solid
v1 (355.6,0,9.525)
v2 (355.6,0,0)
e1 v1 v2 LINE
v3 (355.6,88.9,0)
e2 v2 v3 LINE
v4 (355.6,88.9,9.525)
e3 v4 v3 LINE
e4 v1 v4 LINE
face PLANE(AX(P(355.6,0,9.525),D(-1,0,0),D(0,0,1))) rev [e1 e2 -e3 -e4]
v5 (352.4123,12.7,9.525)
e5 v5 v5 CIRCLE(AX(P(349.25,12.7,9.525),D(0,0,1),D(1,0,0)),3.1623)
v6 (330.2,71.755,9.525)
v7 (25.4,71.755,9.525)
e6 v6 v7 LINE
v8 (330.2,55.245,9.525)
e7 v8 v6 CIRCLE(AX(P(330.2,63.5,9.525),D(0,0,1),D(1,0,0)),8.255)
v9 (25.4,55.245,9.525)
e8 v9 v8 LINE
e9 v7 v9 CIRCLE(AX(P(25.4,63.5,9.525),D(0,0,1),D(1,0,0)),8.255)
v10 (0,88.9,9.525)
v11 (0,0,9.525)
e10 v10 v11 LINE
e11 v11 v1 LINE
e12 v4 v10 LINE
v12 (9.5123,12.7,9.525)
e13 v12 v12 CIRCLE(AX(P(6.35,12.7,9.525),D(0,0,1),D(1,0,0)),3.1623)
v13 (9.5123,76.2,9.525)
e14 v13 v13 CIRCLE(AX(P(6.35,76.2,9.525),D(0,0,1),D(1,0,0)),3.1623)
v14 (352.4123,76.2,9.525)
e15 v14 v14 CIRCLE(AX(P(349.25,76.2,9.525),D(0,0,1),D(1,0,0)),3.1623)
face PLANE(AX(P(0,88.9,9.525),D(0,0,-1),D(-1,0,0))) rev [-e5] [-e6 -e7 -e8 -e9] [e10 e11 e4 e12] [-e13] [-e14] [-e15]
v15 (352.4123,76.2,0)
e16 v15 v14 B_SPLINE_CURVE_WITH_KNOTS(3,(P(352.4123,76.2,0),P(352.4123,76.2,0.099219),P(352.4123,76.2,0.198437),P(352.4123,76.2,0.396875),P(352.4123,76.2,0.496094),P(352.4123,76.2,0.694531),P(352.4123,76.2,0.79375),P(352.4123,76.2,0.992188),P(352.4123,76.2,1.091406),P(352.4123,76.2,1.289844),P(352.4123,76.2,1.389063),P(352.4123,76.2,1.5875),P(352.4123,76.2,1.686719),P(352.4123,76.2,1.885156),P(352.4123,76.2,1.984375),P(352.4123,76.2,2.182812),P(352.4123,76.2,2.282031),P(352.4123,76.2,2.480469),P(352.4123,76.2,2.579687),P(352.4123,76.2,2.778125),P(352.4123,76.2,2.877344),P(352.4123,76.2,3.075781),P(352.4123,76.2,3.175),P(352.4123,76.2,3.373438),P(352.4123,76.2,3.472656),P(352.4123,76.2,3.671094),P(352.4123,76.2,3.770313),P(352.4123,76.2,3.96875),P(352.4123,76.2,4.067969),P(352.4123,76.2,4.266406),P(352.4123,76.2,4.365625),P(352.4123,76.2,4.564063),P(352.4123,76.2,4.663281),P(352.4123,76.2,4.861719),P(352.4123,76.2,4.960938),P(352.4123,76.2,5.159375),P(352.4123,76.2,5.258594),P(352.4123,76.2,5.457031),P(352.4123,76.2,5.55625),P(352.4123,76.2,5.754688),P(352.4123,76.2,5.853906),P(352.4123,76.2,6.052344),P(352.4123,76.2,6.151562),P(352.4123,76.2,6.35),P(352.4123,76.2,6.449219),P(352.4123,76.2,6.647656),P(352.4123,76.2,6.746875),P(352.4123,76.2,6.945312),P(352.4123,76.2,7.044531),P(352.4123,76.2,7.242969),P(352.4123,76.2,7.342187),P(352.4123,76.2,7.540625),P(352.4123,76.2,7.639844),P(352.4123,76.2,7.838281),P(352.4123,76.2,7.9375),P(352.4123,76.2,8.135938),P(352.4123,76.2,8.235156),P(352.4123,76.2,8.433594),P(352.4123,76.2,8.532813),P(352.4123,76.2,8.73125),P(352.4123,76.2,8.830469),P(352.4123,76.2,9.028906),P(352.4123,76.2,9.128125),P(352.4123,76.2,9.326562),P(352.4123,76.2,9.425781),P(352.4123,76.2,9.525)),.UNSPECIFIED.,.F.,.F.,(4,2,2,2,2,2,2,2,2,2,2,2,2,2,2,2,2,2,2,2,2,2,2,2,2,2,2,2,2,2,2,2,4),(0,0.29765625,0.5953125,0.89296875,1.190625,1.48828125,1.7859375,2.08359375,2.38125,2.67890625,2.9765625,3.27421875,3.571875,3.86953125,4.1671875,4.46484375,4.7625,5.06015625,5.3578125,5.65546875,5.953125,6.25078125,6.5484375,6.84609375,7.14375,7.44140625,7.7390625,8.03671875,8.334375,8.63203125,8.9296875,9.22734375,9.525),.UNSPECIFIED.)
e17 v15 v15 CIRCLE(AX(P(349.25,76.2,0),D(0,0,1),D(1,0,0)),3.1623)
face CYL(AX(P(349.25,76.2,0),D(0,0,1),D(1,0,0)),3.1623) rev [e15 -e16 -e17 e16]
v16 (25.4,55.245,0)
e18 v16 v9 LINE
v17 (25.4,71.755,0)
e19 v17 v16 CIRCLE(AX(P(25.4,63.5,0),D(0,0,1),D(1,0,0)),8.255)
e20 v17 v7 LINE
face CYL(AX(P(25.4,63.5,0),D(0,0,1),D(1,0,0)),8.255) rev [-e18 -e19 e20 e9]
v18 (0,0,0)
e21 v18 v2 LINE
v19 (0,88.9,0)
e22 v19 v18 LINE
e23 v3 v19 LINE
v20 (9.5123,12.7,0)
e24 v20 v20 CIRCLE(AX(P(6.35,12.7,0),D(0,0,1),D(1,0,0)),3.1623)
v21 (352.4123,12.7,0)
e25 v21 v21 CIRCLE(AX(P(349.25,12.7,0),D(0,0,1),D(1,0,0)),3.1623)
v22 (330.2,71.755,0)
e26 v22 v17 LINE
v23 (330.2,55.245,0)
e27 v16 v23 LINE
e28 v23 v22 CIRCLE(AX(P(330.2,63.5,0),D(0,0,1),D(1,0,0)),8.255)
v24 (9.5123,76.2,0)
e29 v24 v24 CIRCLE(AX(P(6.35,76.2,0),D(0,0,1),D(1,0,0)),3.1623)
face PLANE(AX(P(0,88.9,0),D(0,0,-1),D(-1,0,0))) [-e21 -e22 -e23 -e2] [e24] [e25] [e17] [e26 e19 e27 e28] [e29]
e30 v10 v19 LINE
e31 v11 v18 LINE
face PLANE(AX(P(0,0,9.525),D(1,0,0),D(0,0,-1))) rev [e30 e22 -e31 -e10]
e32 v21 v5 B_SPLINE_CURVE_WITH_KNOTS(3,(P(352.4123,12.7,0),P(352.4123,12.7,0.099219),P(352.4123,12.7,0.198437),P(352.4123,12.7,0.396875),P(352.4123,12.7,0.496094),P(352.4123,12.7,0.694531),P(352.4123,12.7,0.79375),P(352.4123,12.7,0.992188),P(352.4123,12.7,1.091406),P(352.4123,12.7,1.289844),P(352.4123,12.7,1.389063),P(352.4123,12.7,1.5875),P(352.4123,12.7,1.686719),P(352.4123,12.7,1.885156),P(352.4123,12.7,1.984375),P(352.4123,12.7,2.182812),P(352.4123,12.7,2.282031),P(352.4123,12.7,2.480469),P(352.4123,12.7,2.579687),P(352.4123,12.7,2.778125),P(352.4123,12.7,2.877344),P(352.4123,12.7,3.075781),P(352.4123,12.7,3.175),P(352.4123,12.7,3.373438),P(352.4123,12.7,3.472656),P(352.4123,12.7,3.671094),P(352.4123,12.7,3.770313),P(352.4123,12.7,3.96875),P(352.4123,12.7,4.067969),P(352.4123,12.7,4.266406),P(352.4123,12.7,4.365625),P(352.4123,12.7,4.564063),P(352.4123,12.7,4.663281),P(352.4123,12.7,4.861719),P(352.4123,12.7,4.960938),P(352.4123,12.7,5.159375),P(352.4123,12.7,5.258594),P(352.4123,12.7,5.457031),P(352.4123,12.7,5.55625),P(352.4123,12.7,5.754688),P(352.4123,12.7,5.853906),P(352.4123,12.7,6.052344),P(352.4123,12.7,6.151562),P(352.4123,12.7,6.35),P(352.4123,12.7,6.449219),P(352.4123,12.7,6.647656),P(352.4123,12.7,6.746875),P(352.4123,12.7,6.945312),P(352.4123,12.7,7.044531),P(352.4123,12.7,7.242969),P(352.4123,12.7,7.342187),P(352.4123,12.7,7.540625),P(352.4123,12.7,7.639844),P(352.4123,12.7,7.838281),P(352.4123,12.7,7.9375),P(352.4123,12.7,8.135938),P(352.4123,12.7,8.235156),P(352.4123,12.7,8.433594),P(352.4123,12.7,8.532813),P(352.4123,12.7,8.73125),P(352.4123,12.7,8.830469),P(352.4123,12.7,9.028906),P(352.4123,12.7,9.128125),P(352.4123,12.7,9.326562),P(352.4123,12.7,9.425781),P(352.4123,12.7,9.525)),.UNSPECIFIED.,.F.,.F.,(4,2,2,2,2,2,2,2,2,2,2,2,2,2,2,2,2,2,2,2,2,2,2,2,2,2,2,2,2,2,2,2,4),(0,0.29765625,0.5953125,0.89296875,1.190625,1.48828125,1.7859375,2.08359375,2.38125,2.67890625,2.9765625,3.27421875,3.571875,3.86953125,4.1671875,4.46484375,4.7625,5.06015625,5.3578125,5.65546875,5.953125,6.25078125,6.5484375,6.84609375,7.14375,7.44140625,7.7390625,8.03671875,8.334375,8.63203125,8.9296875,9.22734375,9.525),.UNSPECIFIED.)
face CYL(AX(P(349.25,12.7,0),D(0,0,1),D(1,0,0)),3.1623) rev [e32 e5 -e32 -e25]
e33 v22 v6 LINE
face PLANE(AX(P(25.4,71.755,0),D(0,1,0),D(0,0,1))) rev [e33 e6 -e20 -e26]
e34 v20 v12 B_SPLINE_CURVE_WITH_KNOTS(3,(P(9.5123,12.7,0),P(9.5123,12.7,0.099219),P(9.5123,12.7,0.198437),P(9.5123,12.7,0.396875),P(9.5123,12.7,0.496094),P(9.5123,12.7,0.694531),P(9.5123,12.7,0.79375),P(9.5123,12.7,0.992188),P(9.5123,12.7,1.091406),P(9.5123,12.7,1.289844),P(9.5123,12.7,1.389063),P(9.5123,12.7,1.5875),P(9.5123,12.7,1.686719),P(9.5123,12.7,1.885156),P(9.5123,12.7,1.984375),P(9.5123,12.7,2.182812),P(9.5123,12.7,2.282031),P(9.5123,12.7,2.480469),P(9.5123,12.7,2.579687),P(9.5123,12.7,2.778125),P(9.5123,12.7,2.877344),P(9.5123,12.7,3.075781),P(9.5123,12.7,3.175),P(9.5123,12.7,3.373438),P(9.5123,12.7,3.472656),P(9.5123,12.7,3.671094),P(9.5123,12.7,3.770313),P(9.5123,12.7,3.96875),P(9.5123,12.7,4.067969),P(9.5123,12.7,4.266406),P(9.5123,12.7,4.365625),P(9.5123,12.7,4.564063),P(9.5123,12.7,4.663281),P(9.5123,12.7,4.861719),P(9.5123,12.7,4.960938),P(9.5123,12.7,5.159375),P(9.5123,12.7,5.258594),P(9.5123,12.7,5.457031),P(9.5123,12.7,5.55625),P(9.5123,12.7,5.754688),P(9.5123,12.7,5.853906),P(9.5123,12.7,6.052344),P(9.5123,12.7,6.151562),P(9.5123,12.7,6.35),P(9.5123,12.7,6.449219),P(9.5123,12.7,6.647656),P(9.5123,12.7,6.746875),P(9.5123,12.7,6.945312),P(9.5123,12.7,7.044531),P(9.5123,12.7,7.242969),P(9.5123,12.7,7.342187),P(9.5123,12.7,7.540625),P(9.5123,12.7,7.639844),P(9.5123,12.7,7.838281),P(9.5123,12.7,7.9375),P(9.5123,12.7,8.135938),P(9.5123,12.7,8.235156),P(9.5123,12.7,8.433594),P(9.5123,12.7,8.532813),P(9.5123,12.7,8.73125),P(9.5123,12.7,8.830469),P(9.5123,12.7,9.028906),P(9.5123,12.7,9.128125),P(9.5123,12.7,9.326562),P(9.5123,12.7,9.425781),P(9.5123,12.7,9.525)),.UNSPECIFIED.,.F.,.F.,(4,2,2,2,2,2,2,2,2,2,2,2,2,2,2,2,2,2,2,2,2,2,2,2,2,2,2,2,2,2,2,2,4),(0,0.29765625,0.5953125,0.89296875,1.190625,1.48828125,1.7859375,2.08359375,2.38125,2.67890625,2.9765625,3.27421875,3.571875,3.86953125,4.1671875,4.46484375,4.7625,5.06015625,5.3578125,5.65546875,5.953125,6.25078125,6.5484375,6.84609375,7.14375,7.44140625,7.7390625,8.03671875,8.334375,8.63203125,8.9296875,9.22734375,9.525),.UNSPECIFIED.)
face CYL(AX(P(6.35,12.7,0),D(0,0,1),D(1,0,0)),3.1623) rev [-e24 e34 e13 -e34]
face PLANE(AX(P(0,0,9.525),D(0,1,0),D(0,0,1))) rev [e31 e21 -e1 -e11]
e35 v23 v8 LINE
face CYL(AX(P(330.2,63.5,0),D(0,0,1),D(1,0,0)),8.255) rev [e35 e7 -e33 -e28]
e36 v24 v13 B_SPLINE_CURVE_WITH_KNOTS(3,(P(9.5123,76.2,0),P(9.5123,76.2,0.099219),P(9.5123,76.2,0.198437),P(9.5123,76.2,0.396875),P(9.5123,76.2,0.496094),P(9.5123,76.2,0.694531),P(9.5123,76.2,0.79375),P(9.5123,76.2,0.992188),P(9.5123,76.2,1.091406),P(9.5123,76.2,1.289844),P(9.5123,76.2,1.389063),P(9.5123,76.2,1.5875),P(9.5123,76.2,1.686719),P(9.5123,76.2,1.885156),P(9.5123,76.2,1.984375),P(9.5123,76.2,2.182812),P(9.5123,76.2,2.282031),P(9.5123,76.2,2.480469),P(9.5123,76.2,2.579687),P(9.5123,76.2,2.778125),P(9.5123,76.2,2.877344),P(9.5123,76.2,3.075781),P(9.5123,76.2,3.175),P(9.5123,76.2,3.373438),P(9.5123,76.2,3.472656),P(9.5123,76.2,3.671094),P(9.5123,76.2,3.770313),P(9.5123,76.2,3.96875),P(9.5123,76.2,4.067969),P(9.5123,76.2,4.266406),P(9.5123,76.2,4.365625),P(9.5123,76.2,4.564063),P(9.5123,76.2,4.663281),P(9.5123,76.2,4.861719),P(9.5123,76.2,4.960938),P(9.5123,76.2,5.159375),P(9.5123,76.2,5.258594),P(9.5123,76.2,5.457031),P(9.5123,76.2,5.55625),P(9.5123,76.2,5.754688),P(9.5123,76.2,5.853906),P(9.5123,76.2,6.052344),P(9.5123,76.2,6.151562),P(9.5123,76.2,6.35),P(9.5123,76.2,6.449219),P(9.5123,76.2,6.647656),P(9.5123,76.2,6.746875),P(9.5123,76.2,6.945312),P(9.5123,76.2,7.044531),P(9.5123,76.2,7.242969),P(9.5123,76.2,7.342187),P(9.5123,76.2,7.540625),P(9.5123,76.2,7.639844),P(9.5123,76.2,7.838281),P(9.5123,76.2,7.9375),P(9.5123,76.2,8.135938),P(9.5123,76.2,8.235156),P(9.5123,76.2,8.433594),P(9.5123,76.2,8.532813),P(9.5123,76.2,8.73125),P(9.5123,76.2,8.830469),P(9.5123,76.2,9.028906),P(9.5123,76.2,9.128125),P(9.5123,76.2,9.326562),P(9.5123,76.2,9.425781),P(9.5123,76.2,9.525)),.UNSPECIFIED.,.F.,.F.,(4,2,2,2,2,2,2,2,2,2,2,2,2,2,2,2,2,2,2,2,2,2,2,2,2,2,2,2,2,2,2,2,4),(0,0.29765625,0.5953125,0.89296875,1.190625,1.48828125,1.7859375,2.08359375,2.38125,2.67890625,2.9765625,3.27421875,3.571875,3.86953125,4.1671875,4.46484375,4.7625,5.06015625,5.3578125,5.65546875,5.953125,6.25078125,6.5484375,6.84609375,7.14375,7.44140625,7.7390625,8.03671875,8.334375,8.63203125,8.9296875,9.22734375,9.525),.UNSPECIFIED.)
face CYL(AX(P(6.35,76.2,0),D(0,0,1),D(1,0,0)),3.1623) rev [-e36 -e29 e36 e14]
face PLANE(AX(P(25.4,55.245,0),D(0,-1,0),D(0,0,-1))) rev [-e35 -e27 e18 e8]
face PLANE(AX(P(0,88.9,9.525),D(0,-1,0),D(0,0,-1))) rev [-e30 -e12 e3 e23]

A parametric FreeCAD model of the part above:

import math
import FreeCAD as App
import Part
import Sketcher

V = App.Vector
Q = App.Units.Quantity

doc = App.newDocument("Part")
body = doc.addObject("PartDesign::Body", "Body")

# Sketch on XY plane
sketch1 = body.newObject("Sketcher::SketchObject", "Sketch")
sketch1.AttachmentSupport = (doc.getObject("XY_Plane"), [""])
sketch1.MapMode = "FlatFace"
sketch1.addGeometry(Part.LineSegment(V(0, 88.9, 0), V(0, 0, 0)), False)
sketch1.addGeometry(Part.LineSegment(V(0, 0, 0), V(355.6, 0, 0)), False)
sketch1.addGeometry(Part.LineSegment(V(355.6, 0, 0), V(355.6, 88.9, 0)), False)
sketch1.addGeometry(Part.LineSegment(V(355.6, 88.9, 0), V(0, 88.9, 0)), False)
sketch1.addConstraint(Sketcher.Constraint("Coincident", 0, 2, 1, 1))
sketch1.addConstraint(Sketcher.Constraint("Coincident", 1, 2, 2, 1))
sketch1.addConstraint(Sketcher.Constraint("Coincident", 2, 2, 3, 1))
sketch1.addConstraint(Sketcher.Constraint("Coincident", 3, 2, 0, 1))
sketch1.addConstraint(Sketcher.Constraint("Vertical", 0))
sketch1.addConstraint(Sketcher.Constraint("Horizontal", 1))
sketch1.addConstraint(Sketcher.Constraint("Vertical", 2))
sketch1.addConstraint(Sketcher.Constraint("Horizontal", 3))
sketch1.addConstraint(Sketcher.Constraint("Coincident", 0, 2, -1, 1))
sketch1.addConstraint(Sketcher.Constraint("DistanceX", 1, 1, 1, 2, Q("14 in")))
sketch1.addConstraint(Sketcher.Constraint("DistanceY", 0, 2, 0, 1, Q("3.5 in")))
pad1 = body.newObject("PartDesign::Pad", "Pad")
pad1.Profile = sketch1
pad1.Length = Q("0.375 in")

# Sketch on XY plane
sketch2 = body.newObject("Sketcher::SketchObject", "Sketch001")
sketch2.AttachmentSupport = (doc.getObject("XY_Plane"), [""])
sketch2.MapMode = "FlatFace"
sketch2.AttachmentOffset = App.Placement(V(0, 0, 0.375 * 25.4), App.Rotation())
sketch2.addGeometry(Part.Circle(V(6.35, 76.2, 0), V(0, 0, 1), 3.1623), False)
sketch2.addGeometry(Part.Circle(V(6.35, 12.7, 0), V(0, 0, 1), 3.1623), False)
sketch2.addGeometry(Part.Circle(V(349.25, 76.2, 0), V(0, 0, 1), 3.1623), False)
sketch2.addGeometry(Part.Circle(V(349.25, 12.7, 0), V(0, 0, 1), 3.1623), False)
sketch2.addConstraint(Sketcher.Constraint("Equal", 0, 1))
sketch2.addConstraint(Sketcher.Constraint("Equal", 1, 2))
sketch2.addConstraint(Sketcher.Constraint("Equal", 2, 3))
sketch2.addConstraint(Sketcher.Constraint("Horizontal", 0, 3, 2, 3))
sketch2.addConstraint(Sketcher.Constraint("Horizontal", 1, 3, 3, 3))
sketch2.addConstraint(Sketcher.Constraint("Vertical", 0, 3, 1, 3))
sketch2.addConstraint(Sketcher.Constraint("Vertical", 2, 3, 3, 3))
sketch2.addConstraint(Sketcher.Constraint("Diameter", 0, Q("0.249 in")))
sketch2.addConstraint(Sketcher.Constraint("DistanceY", -1, 1, 0, 3, Q("3 in")))
sketch2.addConstraint(Sketcher.Constraint("DistanceY", -1, 1, 1, 3, Q("0.5 in")))
sketch2.addConstraint(Sketcher.Constraint("DistanceX", 0, 3, 2, 3, Q("13.5 in")))
sketch2.addConstraint(Sketcher.Constraint("DistanceX", -1, 1, 0, 3, Q("0.25 in")))
pocket1 = body.newObject("PartDesign::Pocket", "Pocket")
pocket1.Profile = sketch2
pocket1.Type = "ThroughAll"

# Sketch on XY plane
sketch3 = body.newObject("Sketcher::SketchObject", "Sketch002")
sketch3.AttachmentSupport = (doc.getObject("XY_Plane"), [""])
sketch3.MapMode = "FlatFace"
sketch3.AttachmentOffset = App.Placement(V(0, 0, 0.375 * 25.4), App.Rotation())
sketch3.addGeometry(Part.LineSegment(V(330.2, 71.755, 0), V(25.4, 71.755, 0)), False)
sketch3.addGeometry(Part.ArcOfCircle(Part.Circle(V(25.4, 63.5, 0), V(0, 0, 1), 8.255), math.radians(90), math.radians(270)), False)
sketch3.addGeometry(Part.LineSegment(V(25.4, 55.245, 0), V(330.2, 55.245, 0)), False)
sketch3.addGeometry(Part.ArcOfCircle(Part.Circle(V(330.2, 63.5, 0), V(0, 0, 1), 8.255), math.radians(-90), math.radians(90)), False)
sketch3.addConstraint(Sketcher.Constraint("Tangent", 0, 2, 1, 1))
sketch3.addConstraint(Sketcher.Constraint("Tangent", 1, 2, 2, 1))
sketch3.addConstraint(Sketcher.Constraint("Tangent", 2, 2, 3, 1))
sketch3.addConstraint(Sketcher.Constraint("Tangent", 3, 2, 0, 1))
sketch3.addConstraint(Sketcher.Constraint("Horizontal", 0))
sketch3.addConstraint(Sketcher.Constraint("Horizontal", 2))
sketch3.addConstraint(Sketcher.Constraint("DistanceX", 0, 2, 0, 1, Q("12 in")))
sketch3.addConstraint(Sketcher.Constraint("DistanceX", -1, 1, 1, 3, Q("1 in")))
sketch3.addConstraint(Sketcher.Constraint("Radius", 1, Q("0.325 in")))
sketch3.addConstraint(Sketcher.Constraint("DistanceY", -1, 1, 1, 3, Q("2.5 in")))
pocket2 = body.newObject("PartDesign::Pocket", "Pocket001")
pocket2.Profile = sketch3
pocket2.Type = "ThroughAll"

doc.recompute()
